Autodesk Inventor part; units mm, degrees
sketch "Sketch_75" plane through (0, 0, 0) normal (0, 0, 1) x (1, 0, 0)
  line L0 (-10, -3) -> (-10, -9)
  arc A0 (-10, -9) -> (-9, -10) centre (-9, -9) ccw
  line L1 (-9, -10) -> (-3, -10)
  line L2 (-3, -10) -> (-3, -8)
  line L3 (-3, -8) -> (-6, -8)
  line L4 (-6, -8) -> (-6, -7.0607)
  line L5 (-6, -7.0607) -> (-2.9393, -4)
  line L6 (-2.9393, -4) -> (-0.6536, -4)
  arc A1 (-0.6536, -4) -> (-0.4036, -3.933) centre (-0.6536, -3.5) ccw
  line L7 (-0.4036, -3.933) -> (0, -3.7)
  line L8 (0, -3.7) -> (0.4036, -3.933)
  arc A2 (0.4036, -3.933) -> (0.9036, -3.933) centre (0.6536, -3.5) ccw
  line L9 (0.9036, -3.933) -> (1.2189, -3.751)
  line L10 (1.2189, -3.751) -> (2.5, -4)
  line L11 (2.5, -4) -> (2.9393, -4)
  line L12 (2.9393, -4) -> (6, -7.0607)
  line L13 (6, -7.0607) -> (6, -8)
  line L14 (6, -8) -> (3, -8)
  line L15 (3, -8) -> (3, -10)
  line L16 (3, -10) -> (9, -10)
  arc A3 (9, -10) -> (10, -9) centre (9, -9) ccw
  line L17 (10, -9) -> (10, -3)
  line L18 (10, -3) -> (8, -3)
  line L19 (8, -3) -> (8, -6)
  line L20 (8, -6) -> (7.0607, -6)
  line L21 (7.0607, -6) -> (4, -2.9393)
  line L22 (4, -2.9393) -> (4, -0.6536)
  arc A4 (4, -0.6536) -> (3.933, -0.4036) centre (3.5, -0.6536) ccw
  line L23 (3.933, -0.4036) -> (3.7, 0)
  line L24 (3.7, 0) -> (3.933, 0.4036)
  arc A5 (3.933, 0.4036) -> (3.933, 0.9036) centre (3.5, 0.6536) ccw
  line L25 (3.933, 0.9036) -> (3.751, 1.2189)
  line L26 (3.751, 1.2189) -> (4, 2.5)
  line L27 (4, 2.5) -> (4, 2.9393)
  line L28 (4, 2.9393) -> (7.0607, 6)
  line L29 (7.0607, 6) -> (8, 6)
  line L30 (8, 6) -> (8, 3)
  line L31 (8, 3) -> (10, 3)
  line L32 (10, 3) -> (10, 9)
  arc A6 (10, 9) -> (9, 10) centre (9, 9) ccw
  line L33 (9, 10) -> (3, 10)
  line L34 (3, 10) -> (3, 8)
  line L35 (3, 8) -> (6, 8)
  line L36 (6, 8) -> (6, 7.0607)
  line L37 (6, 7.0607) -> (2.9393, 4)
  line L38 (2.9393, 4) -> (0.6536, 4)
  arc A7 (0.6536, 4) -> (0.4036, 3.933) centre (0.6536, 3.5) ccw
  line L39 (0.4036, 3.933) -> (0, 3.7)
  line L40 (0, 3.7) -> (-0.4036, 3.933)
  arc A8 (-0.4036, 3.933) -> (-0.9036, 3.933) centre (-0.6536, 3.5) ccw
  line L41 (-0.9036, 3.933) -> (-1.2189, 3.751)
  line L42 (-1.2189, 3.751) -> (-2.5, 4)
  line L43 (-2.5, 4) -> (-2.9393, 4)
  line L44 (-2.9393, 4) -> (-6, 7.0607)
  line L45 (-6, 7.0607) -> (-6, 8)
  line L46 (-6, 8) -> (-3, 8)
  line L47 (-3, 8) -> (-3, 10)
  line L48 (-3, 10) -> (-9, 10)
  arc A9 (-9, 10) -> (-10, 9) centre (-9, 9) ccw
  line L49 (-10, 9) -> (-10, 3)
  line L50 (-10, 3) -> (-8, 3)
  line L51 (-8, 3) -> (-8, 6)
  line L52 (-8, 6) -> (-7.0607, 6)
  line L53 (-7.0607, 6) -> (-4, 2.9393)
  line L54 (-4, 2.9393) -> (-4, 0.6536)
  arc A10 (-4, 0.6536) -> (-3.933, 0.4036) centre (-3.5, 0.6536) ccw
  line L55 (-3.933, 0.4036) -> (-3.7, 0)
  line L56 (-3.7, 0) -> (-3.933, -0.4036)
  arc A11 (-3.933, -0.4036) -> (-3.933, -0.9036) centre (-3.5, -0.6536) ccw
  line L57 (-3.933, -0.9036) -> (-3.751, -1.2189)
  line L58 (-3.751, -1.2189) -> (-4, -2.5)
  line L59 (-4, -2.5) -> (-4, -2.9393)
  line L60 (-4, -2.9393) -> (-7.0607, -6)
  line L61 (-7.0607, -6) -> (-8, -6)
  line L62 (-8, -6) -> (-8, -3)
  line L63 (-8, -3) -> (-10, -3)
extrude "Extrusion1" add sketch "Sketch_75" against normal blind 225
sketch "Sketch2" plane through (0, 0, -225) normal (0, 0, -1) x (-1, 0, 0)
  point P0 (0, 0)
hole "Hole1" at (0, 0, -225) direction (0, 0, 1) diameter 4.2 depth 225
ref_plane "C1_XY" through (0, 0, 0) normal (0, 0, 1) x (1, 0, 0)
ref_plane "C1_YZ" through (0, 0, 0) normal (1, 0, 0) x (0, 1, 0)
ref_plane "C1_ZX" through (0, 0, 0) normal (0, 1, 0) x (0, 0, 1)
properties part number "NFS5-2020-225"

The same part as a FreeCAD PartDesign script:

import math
import FreeCAD as App
import Part
import Sketcher
Q = App.Units.Quantity

doc = App.newDocument("Part")
params = doc.addObject("Spreadsheet::Sheet", "Params")
for row, (alias, value) in enumerate([
    ("sketch1_radius", "1 mm"),
    ("sketch1_radius2", "0.5 mm"),
    ("sketch1_width", "2 mm"),
    ("sketch1_width2", "6 mm"),
    ("sketch1_width3", "3 mm"),
    ("pad1_length", "225 mm"),
    ("sketch2_diameter", "4.2 mm"),
    ("hole_diameter", "4.2 mm"),
    ("hole_depth", "225 mm"),
], start=1):
    params.set(f"A{row}", alias)
    params.set(f"B{row}", "=" + value)
    params.setAlias(f"B{row}", alias)

body = doc.addObject("PartDesign::Body", "Body")

sketch1 = doc.addObject("Sketcher::SketchObject", "Sketch")
body.addObject(sketch1)
sketch1.AttachmentSupport = (doc.XY_Plane, [""])
sketch1.MapMode = "FlatFace"
sketch1.addGeometry([
    Part.LineSegment(App.Vector(-8, -3, 0), App.Vector(-10, -3, 0)),
    Part.LineSegment(App.Vector(-10, -3, 0), App.Vector(-10, -9, 0)),
    Part.ArcOfCircle(Part.Circle(App.Vector(-9, -9, 0), App.Vector(0, 0, 1), 1), math.radians(180), math.radians(270)),
    Part.LineSegment(App.Vector(-9, -10, 0), App.Vector(-3, -10, 0)),
    Part.LineSegment(App.Vector(-3, -10, 0), App.Vector(-3, -8, 0)),
    Part.LineSegment(App.Vector(-3, -8, 0), App.Vector(-6, -8, 0)),
    Part.LineSegment(App.Vector(-6, -8, 0), App.Vector(-6, -7.06, 0)),
    Part.LineSegment(App.Vector(-6, -7.06, 0), App.Vector(-2.94, -4, 0)),
    Part.LineSegment(App.Vector(-2.94, -4, 0), App.Vector(-0.65, -4, 0)),
    Part.ArcOfCircle(Part.Circle(App.Vector(-0.65, -3.5, 0), App.Vector(0, 0, 1), 0.5), math.radians(-90), math.radians(-60)),
    Part.LineSegment(App.Vector(-0.4, -3.93, 0), App.Vector(0, -3.7, 0)),
    Part.LineSegment(App.Vector(0, -3.7, 0), App.Vector(0.4, -3.93, 0)),
    Part.ArcOfCircle(Part.Circle(App.Vector(0.65, -3.5, 0), App.Vector(0, 0, 1), 0.5), math.radians(-120), math.radians(-60)),
    Part.LineSegment(App.Vector(0.9, -3.93, 0), App.Vector(1.22, -3.75, 0)),
    Part.LineSegment(App.Vector(1.22, -3.75, 0), App.Vector(2.5, -4, 0)),
    Part.LineSegment(App.Vector(2.5, -4, 0), App.Vector(2.94, -4, 0)),
    Part.LineSegment(App.Vector(2.94, -4, 0), App.Vector(6, -7.06, 0)),
    Part.LineSegment(App.Vector(6, -7.06, 0), App.Vector(6, -8, 0)),
    Part.LineSegment(App.Vector(6, -8, 0), App.Vector(3, -8, 0)),
    Part.LineSegment(App.Vector(3, -8, 0), App.Vector(3, -10, 0)),
    Part.LineSegment(App.Vector(3, -10, 0), App.Vector(9, -10, 0)),
    Part.ArcOfCircle(Part.Circle(App.Vector(9, -9, 0), App.Vector(0, 0, 1), 1), math.radians(-90), math.radians(0)),
    Part.LineSegment(App.Vector(10, -9, 0), App.Vector(10, -3, 0)),
    Part.LineSegment(App.Vector(10, -3, 0), App.Vector(8, -3, 0)),
    Part.LineSegment(App.Vector(8, -3, 0), App.Vector(8, -6, 0)),
    Part.LineSegment(App.Vector(8, -6, 0), App.Vector(7.06, -6, 0)),
    Part.LineSegment(App.Vector(7.06, -6, 0), App.Vector(4, -2.94, 0)),
    Part.LineSegment(App.Vector(4, -2.94, 0), App.Vector(4, -0.65, 0)),
    Part.ArcOfCircle(Part.Circle(App.Vector(3.5, -0.65, 0), App.Vector(0, 0, 1), 0.5), math.radians(0), math.radians(30)),
    Part.LineSegment(App.Vector(3.93, -0.4, 0), App.Vector(3.7, 0, 0)),
    Part.LineSegment(App.Vector(3.7, 0, 0), App.Vector(3.93, 0.4, 0)),
    Part.ArcOfCircle(Part.Circle(App.Vector(3.5, 0.65, 0), App.Vector(0, 0, 1), 0.5), math.radians(-30), math.radians(30)),
    Part.LineSegment(App.Vector(3.93, 0.9, 0), App.Vector(3.75, 1.22, 0)),
    Part.LineSegment(App.Vector(3.75, 1.22, 0), App.Vector(4, 2.5, 0)),
    Part.LineSegment(App.Vector(4, 2.5, 0), App.Vector(4, 2.94, 0)),
    Part.LineSegment(App.Vector(4, 2.94, 0), App.Vector(7.06, 6, 0)),
    Part.LineSegment(App.Vector(7.06, 6, 0), App.Vector(8, 6, 0)),
    Part.LineSegment(App.Vector(8, 6, 0), App.Vector(8, 3, 0)),
    Part.LineSegment(App.Vector(8, 3, 0), App.Vector(10, 3, 0)),
    Part.LineSegment(App.Vector(10, 3, 0), App.Vector(10, 9, 0)),
    Part.ArcOfCircle(Part.Circle(App.Vector(9, 9, 0), App.Vector(0, 0, 1), 1), math.radians(0), math.radians(90)),
    Part.LineSegment(App.Vector(9, 10, 0), App.Vector(3, 10, 0)),
    Part.LineSegment(App.Vector(3, 10, 0), App.Vector(3, 8, 0)),
    Part.LineSegment(App.Vector(3, 8, 0), App.Vector(6, 8, 0)),
    Part.LineSegment(App.Vector(6, 8, 0), App.Vector(6, 7.06, 0)),
    Part.LineSegment(App.Vector(6, 7.06, 0), App.Vector(2.94, 4, 0)),
    Part.LineSegment(App.Vector(2.94, 4, 0), App.Vector(0.65, 4, 0)),
    Part.ArcOfCircle(Part.Circle(App.Vector(0.65, 3.5, 0), App.Vector(0, 0, 1), 0.5), math.radians(90), math.radians(120)),
    Part.LineSegment(App.Vector(0.4, 3.93, 0), App.Vector(0, 3.7, 0)),
    Part.LineSegment(App.Vector(0, 3.7, 0), App.Vector(-0.4, 3.93, 0)),
    Part.ArcOfCircle(Part.Circle(App.Vector(-0.65, 3.5, 0), App.Vector(0, 0, 1), 0.5), math.radians(60), math.radians(120)),
    Part.LineSegment(App.Vector(-0.9, 3.93, 0), App.Vector(-1.22, 3.75, 0)),
    Part.LineSegment(App.Vector(-1.22, 3.75, 0), App.Vector(-2.5, 4, 0)),
    Part.LineSegment(App.Vector(-2.5, 4, 0), App.Vector(-2.94, 4, 0)),
    Part.LineSegment(App.Vector(-2.94, 4, 0), App.Vector(-6, 7.06, 0)),
    Part.LineSegment(App.Vector(-6, 7.06, 0), App.Vector(-6, 8, 0)),
    Part.LineSegment(App.Vector(-6, 8, 0), App.Vector(-3, 8, 0)),
    Part.LineSegment(App.Vector(-3, 8, 0), App.Vector(-3, 10, 0)),
    Part.LineSegment(App.Vector(-3, 10, 0), App.Vector(-9, 10, 0)),
    Part.ArcOfCircle(Part.Circle(App.Vector(-9, 9, 0), App.Vector(0, 0, 1), 1), math.radians(90), math.radians(180)),
    Part.LineSegment(App.Vector(-10, 9, 0), App.Vector(-10, 3, 0)),
    Part.LineSegment(App.Vector(-10, 3, 0), App.Vector(-8, 3, 0)),
    Part.LineSegment(App.Vector(-8, 3, 0), App.Vector(-8, 6, 0)),
    Part.LineSegment(App.Vector(-8, 6, 0), App.Vector(-7.06, 6, 0)),
    Part.LineSegment(App.Vector(-7.06, 6, 0), App.Vector(-4, 2.94, 0)),
    Part.LineSegment(App.Vector(-4, 2.94, 0), App.Vector(-4, 0.65, 0)),
    Part.ArcOfCircle(Part.Circle(App.Vector(-3.5, 0.65, 0), App.Vector(0, 0, 1), 0.5), math.radians(180), math.radians(210)),
    Part.LineSegment(App.Vector(-3.93, 0.4, 0), App.Vector(-3.7, 0, 0)),
    Part.LineSegment(App.Vector(-3.7, 0, 0), App.Vector(-3.93, -0.4, 0)),
    Part.ArcOfCircle(Part.Circle(App.Vector(-3.5, -0.65, 0), App.Vector(0, 0, 1), 0.5), math.radians(150), math.radians(210)),
    Part.LineSegment(App.Vector(-3.93, -0.9, 0), App.Vector(-3.75, -1.22, 0)),
    Part.LineSegment(App.Vector(-3.75, -1.22, 0), App.Vector(-4, -2.5, 0)),
    Part.LineSegment(App.Vector(-4, -2.5, 0), App.Vector(-4, -2.94, 0)),
    Part.LineSegment(App.Vector(-4, -2.94, 0), App.Vector(-7.06, -6, 0)),
    Part.LineSegment(App.Vector(-7.06, -6, 0), App.Vector(-8, -6, 0)),
    Part.LineSegment(App.Vector(-8, -6, 0), App.Vector(-8, -3, 0)),
], False)
sketch1.addConstraint([
    Sketcher.Constraint("Coincident", 0, 2, 1, 1),
    Sketcher.Constraint("Tangent", 1, 2, 2, 1),
    Sketcher.Constraint("Tangent", 2, 2, 3, 1),
    Sketcher.Constraint("Coincident", 3, 2, 4, 1),
    Sketcher.Constraint("Coincident", 4, 2, 5, 1),
    Sketcher.Constraint("Coincident", 5, 2, 6, 1),
    Sketcher.Constraint("Coincident", 6, 2, 7, 1),
    Sketcher.Constraint("Coincident", 7, 2, 8, 1),
    Sketcher.Constraint("Tangent", 8, 2, 9, 1),
    Sketcher.Constraint("Tangent", 9, 2, 10, 1),
    Sketcher.Constraint("Coincident", 10, 2, 11, 1),
    Sketcher.Constraint("Tangent", 11, 2, 12, 1),
    Sketcher.Constraint("Tangent", 12, 2, 13, 1),
    Sketcher.Constraint("Coincident", 13, 2, 14, 1),
    Sketcher.Constraint("Coincident", 14, 2, 15, 1),
    Sketcher.Constraint("Coincident", 15, 2, 16, 1),
    Sketcher.Constraint("Coincident", 16, 2, 17, 1),
    Sketcher.Constraint("Coincident", 17, 2, 18, 1),
    Sketcher.Constraint("Coincident", 18, 2, 19, 1),
    Sketcher.Constraint("Coincident", 19, 2, 20, 1),
    Sketcher.Constraint("Tangent", 20, 2, 21, 1),
    Sketcher.Constraint("Tangent", 21, 2, 22, 1),
    Sketcher.Constraint("Coincident", 22, 2, 23, 1),
    Sketcher.Constraint("Coincident", 23, 2, 24, 1),
    Sketcher.Constraint("Coincident", 24, 2, 25, 1),
    Sketcher.Constraint("Coincident", 25, 2, 26, 1),
    Sketcher.Constraint("Coincident", 26, 2, 27, 1),
    Sketcher.Constraint("Tangent", 27, 2, 28, 1),
    Sketcher.Constraint("Tangent", 28, 2, 29, 1),
    Sketcher.Constraint("Coincident", 29, 2, 30, 1),
    Sketcher.Constraint("Tangent", 30, 2, 31, 1),
    Sketcher.Constraint("Tangent", 31, 2, 32, 1),
    Sketcher.Constraint("Coincident", 32, 2, 33, 1),
    Sketcher.Constraint("Coincident", 33, 2, 34, 1),
    Sketcher.Constraint("Coincident", 34, 2, 35, 1),
    Sketcher.Constraint("Coincident", 35, 2, 36, 1),
    Sketcher.Constraint("Coincident", 36, 2, 37, 1),
    Sketcher.Constraint("Coincident", 37, 2, 38, 1),
    Sketcher.Constraint("Coincident", 38, 2, 39, 1),
    Sketcher.Constraint("Tangent", 39, 2, 40, 1),
    Sketcher.Constraint("Tangent", 40, 2, 41, 1),
    Sketcher.Constraint("Coincident", 41, 2, 42, 1),
    Sketcher.Constraint("Coincident", 42, 2, 43, 1),
    Sketcher.Constraint("Coincident", 43, 2, 44, 1),
    Sketcher.Constraint("Coincident", 44, 2, 45, 1),
    Sketcher.Constraint("Coincident", 45, 2, 46, 1),
    Sketcher.Constraint("Tangent", 46, 2, 47, 1),
    Sketcher.Constraint("Tangent", 47, 2, 48, 1),
    Sketcher.Constraint("Coincident", 48, 2, 49, 1),
    Sketcher.Constraint("Tangent", 49, 2, 50, 1),
    Sketcher.Constraint("Tangent", 50, 2, 51, 1),
    Sketcher.Constraint("Coincident", 51, 2, 52, 1),
    Sketcher.Constraint("Coincident", 52, 2, 53, 1),
    Sketcher.Constraint("Coincident", 53, 2, 54, 1),
    Sketcher.Constraint("Coincident", 54, 2, 55, 1),
    Sketcher.Constraint("Coincident", 55, 2, 56, 1),
    Sketcher.Constraint("Coincident", 56, 2, 57, 1),
    Sketcher.Constraint("Coincident", 57, 2, 58, 1),
    Sketcher.Constraint("Tangent", 58, 2, 59, 1),
    Sketcher.Constraint("Tangent", 59, 2, 60, 1),
    Sketcher.Constraint("Coincident", 60, 2, 61, 1),
    Sketcher.Constraint("Coincident", 61, 2, 62, 1),
    Sketcher.Constraint("Coincident", 62, 2, 63, 1),
    Sketcher.Constraint("Coincident", 63, 2, 64, 1),
    Sketcher.Constraint("Coincident", 64, 2, 65, 1),
    Sketcher.Constraint("Tangent", 65, 2, 66, 1),
    Sketcher.Constraint("Tangent", 66, 2, 67, 1),
    Sketcher.Constraint("Coincident", 67, 2, 68, 1),
    Sketcher.Constraint("Tangent", 68, 2, 69, 1),
    Sketcher.Constraint("Tangent", 69, 2, 70, 1),
    Sketcher.Constraint("Coincident", 70, 2, 71, 1),
    Sketcher.Constraint("Coincident", 71, 2, 72, 1),
    Sketcher.Constraint("Coincident", 72, 2, 73, 1),
    Sketcher.Constraint("Coincident", 73, 2, 74, 1),
    Sketcher.Constraint("Coincident", 74, 2, 75, 1),
    Sketcher.Constraint("Coincident", 75, 2, 0, 1),
    Sketcher.Constraint("Horizontal", 0),
    Sketcher.Constraint("Vertical", 1),
    Sketcher.Constraint("Horizontal", 3),
    Sketcher.Constraint("Vertical", 4),
    Sketcher.Constraint("Horizontal", 5),
    Sketcher.Constraint("Vertical", 6),
    Sketcher.Constraint("Horizontal", 8),
    Sketcher.Constraint("Horizontal", 15),
    Sketcher.Constraint("Vertical", 17),
    Sketcher.Constraint("Horizontal", 18),
    Sketcher.Constraint("Vertical", 19),
    Sketcher.Constraint("Horizontal", 20),
    Sketcher.Constraint("Vertical", 22),
    Sketcher.Constraint("Horizontal", 23),
    Sketcher.Constraint("Vertical", 24),
    Sketcher.Constraint("Horizontal", 25),
    Sketcher.Constraint("Vertical", 27),
    Sketcher.Constraint("Vertical", 34),
    Sketcher.Constraint("Horizontal", 36),
    Sketcher.Constraint("Vertical", 37),
    Sketcher.Constraint("Horizontal", 38),
    Sketcher.Constraint("Vertical", 39),
    Sketcher.Constraint("Horizontal", 41),
    Sketcher.Constraint("Vertical", 42),
    Sketcher.Constraint("Horizontal", 43),
    Sketcher.Constraint("Vertical", 44),
    Sketcher.Constraint("Horizontal", 46),
    Sketcher.Constraint("Horizontal", 53),
    Sketcher.Constraint("Vertical", 55),
    Sketcher.Constraint("Horizontal", 56),
    Sketcher.Constraint("Vertical", 57),
    Sketcher.Constraint("Horizontal", 58),
    Sketcher.Constraint("Vertical", 60),
    Sketcher.Constraint("Horizontal", 61),
    Sketcher.Constraint("Vertical", 62),
    Sketcher.Constraint("Horizontal", 63),
    Sketcher.Constraint("Vertical", 65),
    Sketcher.Constraint("Vertical", 72),
    Sketcher.Constraint("Horizontal", 74),
    Sketcher.Constraint("Vertical", 75),
    Sketcher.Constraint("Equal", 9, 12),
    Sketcher.Constraint("Equal", 2, 21),
    Sketcher.Constraint("Equal", 12, 28),
    Sketcher.Constraint("Equal", 28, 31),
    Sketcher.Constraint("Equal", 21, 40),
    Sketcher.Constraint("Equal", 31, 47),
    Sketcher.Constraint("Equal", 47, 50),
    Sketcher.Constraint("Equal", 40, 59),
    Sketcher.Constraint("Equal", 50, 66),
    Sketcher.Constraint("Equal", 66, 69),
    Sketcher.Constraint("Symmetric", 2, 3, 40, 3, -1, 1),
    Sketcher.Constraint("Symmetric", 9, 3, 47, 3, -1, 1),
    Sketcher.Constraint("Symmetric", 12, 3, 50, 3, -1, 1),
    Sketcher.Constraint("Symmetric", 21, 3, 59, 3, -1, 1),
    Sketcher.Constraint("Symmetric", 28, 3, 66, 3, -1, 1),
    Sketcher.Constraint("Symmetric", 31, 3, 69, 3, -1, 1),
    Sketcher.Constraint("Symmetric", 4, 2, 42, 2, -1, 1),
    Sketcher.Constraint("Symmetric", 6, 2, 44, 2, -1, 1),
    Sketcher.Constraint("Symmetric", 10, 2, 48, 2, -1, 1),
    Sketcher.Constraint("Symmetric", 13, 2, 51, 2, -1, 1),
    Sketcher.Constraint("Symmetric", 14, 2, 52, 2, -1, 1),
    Sketcher.Constraint("Symmetric", 16, 2, 54, 2, -1, 1),
    Sketcher.Constraint("Symmetric", 18, 2, 56, 2, -1, 1),
    Sketcher.Constraint("Symmetric", 23, 2, 61, 2, -1, 1),
    Sketcher.Constraint("Symmetric", 25, 2, 63, 2, -1, 1),
    Sketcher.Constraint("Symmetric", 29, 2, 67, 2, -1, 1),
    Sketcher.Constraint("Symmetric", 32, 2, 70, 2, -1, 1),
    Sketcher.Constraint("Symmetric", 33, 2, 71, 2, -1, 1),
    Sketcher.Constraint("Symmetric", 35, 2, 73, 2, -1, 1),
    Sketcher.Constraint("Symmetric", 37, 2, 75, 2, -1, 1),
    Sketcher.Constraint("Symmetric", 9, 3, 12, 3, -2),
    Sketcher.Constraint("Symmetric", 2, 3, 21, 3, -2),
    Sketcher.Constraint("Symmetric", 31, 3, 66, 3, -2),
    Sketcher.Constraint("Symmetric", 7, 2, 15, 2, -2),
    Sketcher.Constraint("Symmetric", 6, 2, 16, 2, -2),
    Sketcher.Constraint("Symmetric", 4, 2, 18, 2, -2),
    Sketcher.Constraint("Symmetric", 37, 2, 61, 2, -2),
    Sketcher.Constraint("Symmetric", 35, 2, 63, 2, -2),
    Sketcher.Constraint("Symmetric", 34, 2, 64, 2, -2),
    Sketcher.Constraint("PointOnObject", 10, 2, -2),
    Sketcher.Constraint("PointOnObject", 29, 2, -1),
    Sketcher.Constraint("Parallel", 10, 13),
    Sketcher.Constraint("Perpendicular", 7, 16),
    Sketcher.Constraint("Parallel", 16, 26),
    Sketcher.Constraint("Perpendicular", 13, 29),
    Sketcher.Constraint("Parallel", 29, 32),
    Sketcher.Constraint("Perpendicular", 14, 33),
    Sketcher.Constraint("Perpendicular", 26, 35),
    Sketcher.Constraint("Parallel", 35, 45),
    Sketcher.Constraint("Perpendicular", 45, 54),
    Sketcher.Constraint("Perpendicular", 64, 73),
    Sketcher.Constraint("Equal", 58, 1),
    Sketcher.Constraint("Equal", 61, 4),
    Sketcher.Constraint("Equal", 74, 6),
    Sketcher.Constraint("Equal", 56, 24),
    Sketcher.Constraint("Equal", 46, 27),
    Sketcher.Constraint("Equal", 53, 34),
    Sketcher.Constraint("Equal", 16, 26),
    Sketcher.Constraint("Equal", 11, 29),
    Sketcher.Constraint("Radius", 2, 1.0),
    Sketcher.Constraint("Radius", 9, 0.5),
    Sketcher.Constraint("DistanceX", 0, 2, 0, 1, 2.0),
    Sketcher.Constraint("DistanceX", 3, 1, 3, 2, 6.0),
    Sketcher.Constraint("DistanceX", 5, 2, 5, 1, 3.0),
    Sketcher.Constraint("Angle", 14, Q("-10.999 deg")),
    Sketcher.Constraint("DistanceX", 2, 3, -1, 1, 9.0),
    Sketcher.Constraint("DistanceY", 7, 2, -1, 1, 4.0),
    Sketcher.Constraint("DistanceY", 10, 2, -1, 1, 3.7),
    Sketcher.Constraint("DistanceX", -1, 1, 14, 2, 2.5),
    Sketcher.Constraint("Distance", 10, 0.466),
    Sketcher.Constraint("DistanceX", 8, 1, 8, 2, 2.2857),
])
sketch1.setExpression("Constraints[175]", "Params.sketch1_radius")
sketch1.setExpression("Constraints[176]", "Params.sketch1_radius2")
sketch1.setExpression("Constraints[177]", "Params.sketch1_width")
sketch1.setExpression("Constraints[178]", "Params.sketch1_width2")
sketch1.setExpression("Constraints[179]", "Params.sketch1_width3")
pad1 = doc.addObject("PartDesign::Pad", "Pad")
body.addObject(pad1)
pad1.Profile = sketch1
pad1.setExpression("Length", "Params.pad1_length")
pad1.Reversed = True

sketch2 = doc.addObject("Sketcher::SketchObject", "Sketch001")
body.addObject(sketch2)
sketch2.AttachmentSupport = (doc.XY_Plane, [""])
sketch2.MapMode = "FlatFace"
sketch2.AttachmentOffset = App.Placement(App.Vector(0, 0, -225), App.Rotation())
sketch2.addGeometry(Part.Circle(App.Vector(0, 0, 0), App.Vector(0, 0, 1), 2.1), False)
sketch2.addConstraint([
    Sketcher.Constraint("Coincident", 0, 3, -1, 1),
    Sketcher.Constraint("Diameter", 0, 4.2),
])
sketch2.setExpression("Constraints[1]", "Params.sketch2_diameter")
doc.recompute()
hole = doc.addObject("PartDesign::Hole", "Hole")
body.addObject(hole)
hole.Profile = sketch2
hole.ThreadType = "None"
hole.setExpression("Diameter", "Params.hole_diameter")
hole.DepthType = "Dimension"
hole.setExpression("Depth", "Params.hole_depth")
hole.DrillPoint = "Flat"
hole.Reversed = True

doc.recompute()
